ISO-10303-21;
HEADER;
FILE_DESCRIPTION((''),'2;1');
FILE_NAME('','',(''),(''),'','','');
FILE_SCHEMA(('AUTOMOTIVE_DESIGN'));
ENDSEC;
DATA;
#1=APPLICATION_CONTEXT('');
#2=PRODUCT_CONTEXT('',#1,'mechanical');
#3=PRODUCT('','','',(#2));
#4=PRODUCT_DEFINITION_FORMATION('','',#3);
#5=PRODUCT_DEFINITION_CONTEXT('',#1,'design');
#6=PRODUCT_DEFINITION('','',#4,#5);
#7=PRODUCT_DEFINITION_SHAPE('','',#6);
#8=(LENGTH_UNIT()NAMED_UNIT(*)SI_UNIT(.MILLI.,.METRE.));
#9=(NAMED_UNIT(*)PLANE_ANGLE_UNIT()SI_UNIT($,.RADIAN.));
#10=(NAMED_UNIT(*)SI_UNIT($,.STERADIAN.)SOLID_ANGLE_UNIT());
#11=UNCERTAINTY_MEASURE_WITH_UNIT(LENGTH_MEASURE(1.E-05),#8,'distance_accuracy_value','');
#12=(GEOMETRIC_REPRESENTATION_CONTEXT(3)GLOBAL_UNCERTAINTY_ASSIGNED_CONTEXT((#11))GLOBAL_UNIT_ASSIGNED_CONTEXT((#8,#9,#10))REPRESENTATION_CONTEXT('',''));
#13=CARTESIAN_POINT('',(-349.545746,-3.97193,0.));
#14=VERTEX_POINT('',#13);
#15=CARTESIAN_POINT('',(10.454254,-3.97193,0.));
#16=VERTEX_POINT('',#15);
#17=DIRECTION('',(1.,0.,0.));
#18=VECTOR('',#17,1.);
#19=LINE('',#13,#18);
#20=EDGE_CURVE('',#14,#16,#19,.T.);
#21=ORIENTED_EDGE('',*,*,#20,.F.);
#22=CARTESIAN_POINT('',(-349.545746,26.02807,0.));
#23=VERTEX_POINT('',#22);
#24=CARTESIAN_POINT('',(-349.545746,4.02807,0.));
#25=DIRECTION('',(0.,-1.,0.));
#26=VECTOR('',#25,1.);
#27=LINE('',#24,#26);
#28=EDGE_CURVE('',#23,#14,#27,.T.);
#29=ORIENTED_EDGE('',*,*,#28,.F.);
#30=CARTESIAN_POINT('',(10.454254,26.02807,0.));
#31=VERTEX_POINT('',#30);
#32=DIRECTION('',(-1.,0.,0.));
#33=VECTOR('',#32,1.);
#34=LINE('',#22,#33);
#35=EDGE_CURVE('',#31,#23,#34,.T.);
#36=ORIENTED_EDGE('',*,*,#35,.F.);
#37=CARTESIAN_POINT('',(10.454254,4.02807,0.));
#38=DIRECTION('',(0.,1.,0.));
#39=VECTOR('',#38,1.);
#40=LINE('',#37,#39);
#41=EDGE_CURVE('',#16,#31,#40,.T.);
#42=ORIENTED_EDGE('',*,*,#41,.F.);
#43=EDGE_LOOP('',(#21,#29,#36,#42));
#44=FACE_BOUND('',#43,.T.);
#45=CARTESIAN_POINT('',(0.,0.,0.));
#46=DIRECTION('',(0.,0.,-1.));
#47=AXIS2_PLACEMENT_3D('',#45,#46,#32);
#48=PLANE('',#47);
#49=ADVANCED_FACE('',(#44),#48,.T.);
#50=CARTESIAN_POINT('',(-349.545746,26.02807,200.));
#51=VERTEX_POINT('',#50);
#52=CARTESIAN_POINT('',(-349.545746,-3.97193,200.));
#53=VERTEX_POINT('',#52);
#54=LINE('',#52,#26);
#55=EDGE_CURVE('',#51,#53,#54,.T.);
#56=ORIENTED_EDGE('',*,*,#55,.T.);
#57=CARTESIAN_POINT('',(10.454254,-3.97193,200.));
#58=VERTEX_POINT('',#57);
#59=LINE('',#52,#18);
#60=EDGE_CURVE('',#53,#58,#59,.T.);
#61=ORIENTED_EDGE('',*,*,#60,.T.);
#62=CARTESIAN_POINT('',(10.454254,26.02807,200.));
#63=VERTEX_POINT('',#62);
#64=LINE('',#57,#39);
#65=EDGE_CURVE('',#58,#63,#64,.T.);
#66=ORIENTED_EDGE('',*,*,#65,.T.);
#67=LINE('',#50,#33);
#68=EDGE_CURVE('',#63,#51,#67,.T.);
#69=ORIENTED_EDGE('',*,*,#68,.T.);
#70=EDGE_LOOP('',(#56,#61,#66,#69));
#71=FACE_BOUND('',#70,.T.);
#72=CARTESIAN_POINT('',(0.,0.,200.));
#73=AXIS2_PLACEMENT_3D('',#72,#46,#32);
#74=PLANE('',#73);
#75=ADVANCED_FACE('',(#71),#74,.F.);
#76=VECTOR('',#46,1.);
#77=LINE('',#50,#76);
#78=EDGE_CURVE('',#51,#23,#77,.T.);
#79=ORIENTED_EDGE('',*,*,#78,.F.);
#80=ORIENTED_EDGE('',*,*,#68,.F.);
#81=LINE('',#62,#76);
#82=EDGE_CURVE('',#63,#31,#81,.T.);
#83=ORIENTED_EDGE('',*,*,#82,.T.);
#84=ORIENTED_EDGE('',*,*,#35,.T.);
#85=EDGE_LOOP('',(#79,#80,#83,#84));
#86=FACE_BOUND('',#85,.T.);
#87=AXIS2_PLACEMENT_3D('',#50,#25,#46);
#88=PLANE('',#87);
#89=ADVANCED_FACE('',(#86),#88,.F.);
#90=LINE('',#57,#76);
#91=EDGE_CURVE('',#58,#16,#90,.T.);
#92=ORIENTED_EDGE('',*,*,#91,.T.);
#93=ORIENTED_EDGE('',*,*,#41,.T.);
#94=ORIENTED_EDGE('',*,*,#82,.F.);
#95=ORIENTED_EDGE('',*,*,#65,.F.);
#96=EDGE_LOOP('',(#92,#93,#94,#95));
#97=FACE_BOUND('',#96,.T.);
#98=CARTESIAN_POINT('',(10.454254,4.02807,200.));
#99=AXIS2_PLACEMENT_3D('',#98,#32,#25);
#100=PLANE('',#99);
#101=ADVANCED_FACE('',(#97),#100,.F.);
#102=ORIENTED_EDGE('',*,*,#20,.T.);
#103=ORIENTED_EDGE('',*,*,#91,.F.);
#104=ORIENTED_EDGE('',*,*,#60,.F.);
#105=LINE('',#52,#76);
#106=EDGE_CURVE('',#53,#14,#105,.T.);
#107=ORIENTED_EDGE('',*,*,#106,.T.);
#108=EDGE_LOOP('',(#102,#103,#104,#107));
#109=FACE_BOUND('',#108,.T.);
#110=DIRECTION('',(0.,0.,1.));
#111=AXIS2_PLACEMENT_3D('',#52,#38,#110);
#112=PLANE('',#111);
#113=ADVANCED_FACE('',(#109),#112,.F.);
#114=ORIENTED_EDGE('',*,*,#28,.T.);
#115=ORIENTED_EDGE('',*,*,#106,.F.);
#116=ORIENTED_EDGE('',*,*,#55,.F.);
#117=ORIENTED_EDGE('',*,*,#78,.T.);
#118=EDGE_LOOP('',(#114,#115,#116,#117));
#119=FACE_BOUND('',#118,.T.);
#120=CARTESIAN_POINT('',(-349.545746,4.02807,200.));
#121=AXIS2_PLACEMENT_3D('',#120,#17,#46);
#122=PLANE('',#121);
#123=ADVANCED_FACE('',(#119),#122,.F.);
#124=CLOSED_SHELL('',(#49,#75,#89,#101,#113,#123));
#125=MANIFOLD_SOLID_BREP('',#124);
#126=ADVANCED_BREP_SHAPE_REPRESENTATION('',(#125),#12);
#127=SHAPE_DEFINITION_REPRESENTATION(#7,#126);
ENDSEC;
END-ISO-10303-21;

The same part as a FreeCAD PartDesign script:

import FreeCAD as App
import Part
import Sketcher

V = App.Vector


def add_polygon(sketch, points):
    """Adds a closed chain of lines whose ends are joined by coincident constraints."""
    first, n = sketch.GeometryCount, len(points)
    for a, b in zip(points, points[1:] + points[:1]):
        sketch.addGeometry(Part.LineSegment(App.Vector(*a, 0), App.Vector(*b, 0)), False)
    for i in range(n):
        sketch.addConstraint(Sketcher.Constraint("Coincident", first + i, 2, first + (i + 1) % n, 1))

doc = App.newDocument("Part")
body = doc.addObject("PartDesign::Body", "Body")

# Sketch on XY plane
sketch1 = doc.addObject("Sketcher::SketchObject", "Sketch")
body.addObject(sketch1)
sketch1.AttachmentSupport = (doc.XY_Plane, [""])
sketch1.MapMode = "FlatFace"
add_polygon(sketch1, [(-349.545746, -3.97193), (10.454254, -3.97193), (10.454254, 26.02807), (-349.545746, 26.02807)])  # lines 0-3
sketch1.addConstraint([
    Sketcher.Constraint("Horizontal", 0),
    Sketcher.Constraint("Vertical", 1),
    Sketcher.Constraint("Horizontal", 2),
    Sketcher.Constraint("Vertical", 3),
    Sketcher.Constraint("DistanceX", 0, 1, 0, 2, 360.0),
    Sketcher.Constraint("DistanceY", 1, 1, 1, 2, 30.0),
    Sketcher.Constraint("DistanceY", 0, 2, -1, 1, 3.97193),
    Sketcher.Constraint("DistanceX", -1, 1, 0, 2, 10.454254),
])
pad1 = doc.addObject("PartDesign::Pad", "Pad")
body.addObject(pad1)
pad1.Profile = sketch1
pad1.Length = 200

doc.recompute()
